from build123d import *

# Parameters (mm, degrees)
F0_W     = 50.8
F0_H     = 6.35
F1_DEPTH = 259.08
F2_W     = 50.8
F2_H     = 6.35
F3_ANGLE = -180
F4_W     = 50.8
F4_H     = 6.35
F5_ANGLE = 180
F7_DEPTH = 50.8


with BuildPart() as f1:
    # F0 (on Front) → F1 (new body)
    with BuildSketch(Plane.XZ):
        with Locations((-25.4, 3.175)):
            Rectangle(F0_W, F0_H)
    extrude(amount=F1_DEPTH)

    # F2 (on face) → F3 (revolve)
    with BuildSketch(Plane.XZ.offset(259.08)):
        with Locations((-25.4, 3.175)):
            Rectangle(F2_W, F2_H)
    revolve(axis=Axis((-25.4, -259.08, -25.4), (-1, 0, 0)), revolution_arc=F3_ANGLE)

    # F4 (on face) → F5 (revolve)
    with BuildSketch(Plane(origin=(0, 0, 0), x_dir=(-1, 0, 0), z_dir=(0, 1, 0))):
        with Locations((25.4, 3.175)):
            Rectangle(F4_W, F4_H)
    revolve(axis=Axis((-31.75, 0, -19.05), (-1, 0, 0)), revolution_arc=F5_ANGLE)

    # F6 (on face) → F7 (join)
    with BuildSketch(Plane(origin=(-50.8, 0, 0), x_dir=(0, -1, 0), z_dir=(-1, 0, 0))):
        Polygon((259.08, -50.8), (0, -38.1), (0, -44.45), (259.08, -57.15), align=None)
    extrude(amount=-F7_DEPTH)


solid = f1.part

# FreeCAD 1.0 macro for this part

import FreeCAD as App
import Part
import Sketcher
Q = App.Units.Quantity


def add_polygon(sketch, points):
    """Adds a closed chain of lines whose ends are joined by coincident constraints."""
    first, n = sketch.GeometryCount, len(points)
    for a, b in zip(points, points[1:] + points[:1]):
        sketch.addGeometry(Part.LineSegment(App.Vector(*a, 0), App.Vector(*b, 0)), False)
    for i in range(n):
        sketch.addConstraint(Sketcher.Constraint("Coincident", first + i, 2, first + (i + 1) % n, 1))

doc = App.newDocument("Part")
body = doc.addObject("PartDesign::Body", "Body")

# Sketch on XZ plane
sketch1 = doc.addObject("Sketcher::SketchObject", "Sketch")
body.addObject(sketch1)
sketch1.AttachmentSupport = (doc.XZ_Plane, [""])
sketch1.MapMode = "FlatFace"
add_polygon(sketch1, [(-50.8, 6.35), (-50.8, 0), (0, 0), (0, 6.35)])  # lines 0-3
sketch1.addConstraint(Sketcher.Constraint("Vertical", 0))
sketch1.addConstraint(Sketcher.Constraint("Horizontal", 1))
sketch1.addConstraint(Sketcher.Constraint("Vertical", 2))
sketch1.addConstraint(Sketcher.Constraint("Horizontal", 3))
sketch1.addConstraint(Sketcher.Constraint("Coincident", 1, 2, -1, 1))
sketch1.addConstraint(Sketcher.Constraint("DistanceX", 1, 1, 1, 2, Q("2 in")))
sketch1.addConstraint(Sketcher.Constraint("DistanceY", 0, 2, 0, 1, Q("0.25 in")))
pad1 = doc.addObject("PartDesign::Pad", "Pad")
body.addObject(pad1)
pad1.Profile = sketch1
pad1.Length = Q("10.2 in")

# Sketch on XZ plane
sketch2 = doc.addObject("Sketcher::SketchObject", "Sketch001")
body.addObject(sketch2)
sketch2.AttachmentSupport = (doc.XZ_Plane, [""])
sketch2.MapMode = "FlatFace"
sketch2.AttachmentOffset = App.Placement(App.Vector(0, 0, 10.2 * 25.4), App.Rotation())
add_polygon(sketch2, [(-50.8, 6.35), (-50.8, 0), (0, 0), (0, 6.35)])  # lines 0-3
sketch2.addGeometry(Part.LineSegment(App.Vector(0, -25.4, 0), App.Vector(-50.8, -25.4, 0)), True)  # axis
sketch2.addConstraint(Sketcher.Constraint("Vertical", 0))
sketch2.addConstraint(Sketcher.Constraint("Horizontal", 1))
sketch2.addConstraint(Sketcher.Constraint("Vertical", 2))
sketch2.addConstraint(Sketcher.Constraint("Horizontal", 3))
sketch2.addConstraint(Sketcher.Constraint("Horizontal", 4))
sketch2.addConstraint(Sketcher.Constraint("Coincident", 1, 2, -1, 1))
sketch2.addConstraint(Sketcher.Constraint("PointOnObject", 4, 1, -2))
sketch2.addConstraint(Sketcher.Constraint("Vertical", 3, 2, 4, 2))
sketch2.addConstraint(Sketcher.Constraint("DistanceX", 1, 1, 1, 2, Q("2 in")))
sketch2.addConstraint(Sketcher.Constraint("DistanceY", 4, 1, -1, 1, Q("1 in")))
sketch2.addConstraint(Sketcher.Constraint("DistanceY", 0, 2, 0, 1, Q("0.25 in")))
revolution = doc.addObject("PartDesign::Revolution", "Revolution")
body.addObject(revolution)
revolution.Profile = sketch2
revolution.ReferenceAxis = (sketch2, ["Axis0"])
revolution.Angle = 180
revolution.Reversed = True

# Sketch on XZ plane
sketch3 = doc.addObject("Sketcher::SketchObject", "Sketch002")
body.addObject(sketch3)
sketch3.AttachmentSupport = (doc.XZ_Plane, [""])
sketch3.MapMode = "FlatFace"
add_polygon(sketch3, [(0, 6.35), (0, 0), (-50.8, 0), (-50.8, 6.35)])  # lines 0-3
sketch3.addGeometry(Part.LineSegment(App.Vector(0, -19.05, 0), App.Vector(-50.8, -19.05, 0)), True)  # axis
sketch3.addConstraint(Sketcher.Constraint("Vertical", 0))
sketch3.addConstraint(Sketcher.Constraint("Horizontal", 1))
sketch3.addConstraint(Sketcher.Constraint("Vertical", 2))
sketch3.addConstraint(Sketcher.Constraint("Horizontal", 3))
sketch3.addConstraint(Sketcher.Constraint("Horizontal", 4))
sketch3.addConstraint(Sketcher.Constraint("Coincident", 0, 2, -1, 1))
sketch3.addConstraint(Sketcher.Constraint("PointOnObject", 4, 1, -2))
sketch3.addConstraint(Sketcher.Constraint("Vertical", 2, 2, 4, 2))
sketch3.addConstraint(Sketcher.Constraint("DistanceX", 1, 2, 1, 1, Q("2 in")))
sketch3.addConstraint(Sketcher.Constraint("DistanceY", 4, 1, 3, 2, Q("1 in")))
sketch3.addConstraint(Sketcher.Constraint("DistanceY", 0, 2, 0, 1, Q("0.25 in")))
revolution2 = doc.addObject("PartDesign::Revolution", "Revolution001")
body.addObject(revolution2)
revolution2.Profile = sketch3
revolution2.ReferenceAxis = (sketch3, ["Axis0"])
revolution2.Angle = 180

# Sketch on YZ plane
sketch4 = doc.addObject("Sketcher::SketchObject", "Sketch003")
body.addObject(sketch4)
sketch4.AttachmentSupport = (doc.YZ_Plane, [""])
sketch4.MapMode = "FlatFace"
sketch4.AttachmentOffset = App.Placement(App.Vector(0, 0, -2 * 25.4), App.Rotation())
add_polygon(sketch4, [(-259.08, -50.8), (0, -38.1), (0, -44.45), (-259.08, -57.15)])  # lines 0-3
sketch4.addConstraint(Sketcher.Constraint("Vertical", 1))
sketch4.addConstraint(Sketcher.Constraint("Vertical", 3))
sketch4.addConstraint(Sketcher.Constraint("PointOnObject", 0, 2, -2))
sketch4.addConstraint(Sketcher.Constraint("Parallel", 0, 2))
sketch4.addConstraint(Sketcher.Constraint("DistanceY", 3, 2, -1, 1, Q("2 in")))
sketch4.addConstraint(Sketcher.Constraint("DistanceY", 1, 2, 1, 1, Q("0.25 in")))
sketch4.addConstraint(Sketcher.Constraint("DistanceY", 0, 2, -1, 1, Q("1.5 in")))
sketch4.addConstraint(Sketcher.Constraint("DistanceX", 2, 2, -1, 1, Q("10.2 in")))
pad2 = doc.addObject("PartDesign::Pad", "Pad001")
body.addObject(pad2)
pad2.Profile = sketch4
pad2.Length = Q("2 in")

doc.recompute()
